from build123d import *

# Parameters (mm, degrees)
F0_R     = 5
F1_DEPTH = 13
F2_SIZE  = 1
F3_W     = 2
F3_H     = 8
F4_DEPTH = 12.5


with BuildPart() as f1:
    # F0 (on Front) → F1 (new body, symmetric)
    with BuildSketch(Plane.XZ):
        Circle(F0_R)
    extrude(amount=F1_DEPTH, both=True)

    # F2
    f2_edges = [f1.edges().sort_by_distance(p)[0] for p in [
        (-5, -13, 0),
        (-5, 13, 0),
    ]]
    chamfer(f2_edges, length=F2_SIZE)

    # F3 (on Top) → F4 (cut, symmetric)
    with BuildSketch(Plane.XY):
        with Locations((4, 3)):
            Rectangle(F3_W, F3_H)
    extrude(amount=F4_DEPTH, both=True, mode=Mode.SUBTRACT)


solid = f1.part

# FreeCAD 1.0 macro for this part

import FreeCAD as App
import Part
import Sketcher


def edges_at(feature, points):
    """Names of the edges that pass closest to the given points."""
    edges = feature.Shape.Edges
    near = lambda p: min(range(len(edges)), key=lambda i: edges[i].distToShape(Part.Vertex(*p))[0])
    return sorted({f"Edge{near(p) + 1}" for p in points})

doc = App.newDocument("Part")
body = doc.addObject("PartDesign::Body", "Body")

sketch1 = body.newObject("Sketcher::SketchObject", "Sketch")
sketch1.AttachmentSupport = (doc.getObject("XZ_Plane"), [""])
sketch1.MapMode = "FlatFace"
sketch1.addGeometry(Part.Circle(App.Vector(0, 0, 0), App.Vector(0, 0, 1), 5), False)
sketch1.addConstraint(Sketcher.Constraint("Coincident", 0, 3, -1, 1))
sketch1.addConstraint(Sketcher.Constraint("Diameter", 0, 10.0))
pad1 = body.newObject("PartDesign::Pad", "Pad")
pad1.Profile = sketch1
pad1.Length = 26
pad1.Midplane = True
doc.recompute()

chamfer = body.newObject("PartDesign::Chamfer", "Chamfer")
chamfer.Base = (pad1, edges_at(pad1, [(-5, -13, 0), (-5, 13, 0)]))
chamfer.Size = 1

sketch2 = body.newObject("Sketcher::SketchObject", "Sketch001")
sketch2.AttachmentSupport = (doc.getObject("XY_Plane"), [""])
sketch2.MapMode = "FlatFace"
sketch2.addGeometry(Part.LineSegment(App.Vector(3, 7, 0), App.Vector(3, -1, 0)), False)
sketch2.addGeometry(Part.LineSegment(App.Vector(3, -1, 0), App.Vector(5, -1, 0)), False)
sketch2.addGeometry(Part.LineSegment(App.Vector(5, -1, 0), App.Vector(5, 7, 0)), False)
sketch2.addGeometry(Part.LineSegment(App.Vector(5, 7, 0), App.Vector(3, 7, 0)), False)
sketch2.addConstraint(Sketcher.Constraint("Coincident", 0, 2, 1, 1))
sketch2.addConstraint(Sketcher.Constraint("Coincident", 1, 2, 2, 1))
sketch2.addConstraint(Sketcher.Constraint("Coincident", 2, 2, 3, 1))
sketch2.addConstraint(Sketcher.Constraint("Coincident", 3, 2, 0, 1))
sketch2.addConstraint(Sketcher.Constraint("Vertical", 0))
sketch2.addConstraint(Sketcher.Constraint("Horizontal", 1))
sketch2.addConstraint(Sketcher.Constraint("Vertical", 2))
sketch2.addConstraint(Sketcher.Constraint("Horizontal", 3))
sketch2.addConstraint(Sketcher.Constraint("DistanceX", 1, 1, 1, 2, 2.0))
sketch2.addConstraint(Sketcher.Constraint("DistanceY", 0, 2, 0, 1, 8.0))
sketch2.addConstraint(Sketcher.Constraint("DistanceX", -1, 1, 0, 2, 3.0))
sketch2.addConstraint(Sketcher.Constraint("DistanceY", 0, 2, -1, 1, 1.0))
pocket1 = body.newObject("PartDesign::Pocket", "Pocket")
pocket1.Profile = sketch2
pocket1.Length = 25
pocket1.Midplane = True

doc.recompute()
